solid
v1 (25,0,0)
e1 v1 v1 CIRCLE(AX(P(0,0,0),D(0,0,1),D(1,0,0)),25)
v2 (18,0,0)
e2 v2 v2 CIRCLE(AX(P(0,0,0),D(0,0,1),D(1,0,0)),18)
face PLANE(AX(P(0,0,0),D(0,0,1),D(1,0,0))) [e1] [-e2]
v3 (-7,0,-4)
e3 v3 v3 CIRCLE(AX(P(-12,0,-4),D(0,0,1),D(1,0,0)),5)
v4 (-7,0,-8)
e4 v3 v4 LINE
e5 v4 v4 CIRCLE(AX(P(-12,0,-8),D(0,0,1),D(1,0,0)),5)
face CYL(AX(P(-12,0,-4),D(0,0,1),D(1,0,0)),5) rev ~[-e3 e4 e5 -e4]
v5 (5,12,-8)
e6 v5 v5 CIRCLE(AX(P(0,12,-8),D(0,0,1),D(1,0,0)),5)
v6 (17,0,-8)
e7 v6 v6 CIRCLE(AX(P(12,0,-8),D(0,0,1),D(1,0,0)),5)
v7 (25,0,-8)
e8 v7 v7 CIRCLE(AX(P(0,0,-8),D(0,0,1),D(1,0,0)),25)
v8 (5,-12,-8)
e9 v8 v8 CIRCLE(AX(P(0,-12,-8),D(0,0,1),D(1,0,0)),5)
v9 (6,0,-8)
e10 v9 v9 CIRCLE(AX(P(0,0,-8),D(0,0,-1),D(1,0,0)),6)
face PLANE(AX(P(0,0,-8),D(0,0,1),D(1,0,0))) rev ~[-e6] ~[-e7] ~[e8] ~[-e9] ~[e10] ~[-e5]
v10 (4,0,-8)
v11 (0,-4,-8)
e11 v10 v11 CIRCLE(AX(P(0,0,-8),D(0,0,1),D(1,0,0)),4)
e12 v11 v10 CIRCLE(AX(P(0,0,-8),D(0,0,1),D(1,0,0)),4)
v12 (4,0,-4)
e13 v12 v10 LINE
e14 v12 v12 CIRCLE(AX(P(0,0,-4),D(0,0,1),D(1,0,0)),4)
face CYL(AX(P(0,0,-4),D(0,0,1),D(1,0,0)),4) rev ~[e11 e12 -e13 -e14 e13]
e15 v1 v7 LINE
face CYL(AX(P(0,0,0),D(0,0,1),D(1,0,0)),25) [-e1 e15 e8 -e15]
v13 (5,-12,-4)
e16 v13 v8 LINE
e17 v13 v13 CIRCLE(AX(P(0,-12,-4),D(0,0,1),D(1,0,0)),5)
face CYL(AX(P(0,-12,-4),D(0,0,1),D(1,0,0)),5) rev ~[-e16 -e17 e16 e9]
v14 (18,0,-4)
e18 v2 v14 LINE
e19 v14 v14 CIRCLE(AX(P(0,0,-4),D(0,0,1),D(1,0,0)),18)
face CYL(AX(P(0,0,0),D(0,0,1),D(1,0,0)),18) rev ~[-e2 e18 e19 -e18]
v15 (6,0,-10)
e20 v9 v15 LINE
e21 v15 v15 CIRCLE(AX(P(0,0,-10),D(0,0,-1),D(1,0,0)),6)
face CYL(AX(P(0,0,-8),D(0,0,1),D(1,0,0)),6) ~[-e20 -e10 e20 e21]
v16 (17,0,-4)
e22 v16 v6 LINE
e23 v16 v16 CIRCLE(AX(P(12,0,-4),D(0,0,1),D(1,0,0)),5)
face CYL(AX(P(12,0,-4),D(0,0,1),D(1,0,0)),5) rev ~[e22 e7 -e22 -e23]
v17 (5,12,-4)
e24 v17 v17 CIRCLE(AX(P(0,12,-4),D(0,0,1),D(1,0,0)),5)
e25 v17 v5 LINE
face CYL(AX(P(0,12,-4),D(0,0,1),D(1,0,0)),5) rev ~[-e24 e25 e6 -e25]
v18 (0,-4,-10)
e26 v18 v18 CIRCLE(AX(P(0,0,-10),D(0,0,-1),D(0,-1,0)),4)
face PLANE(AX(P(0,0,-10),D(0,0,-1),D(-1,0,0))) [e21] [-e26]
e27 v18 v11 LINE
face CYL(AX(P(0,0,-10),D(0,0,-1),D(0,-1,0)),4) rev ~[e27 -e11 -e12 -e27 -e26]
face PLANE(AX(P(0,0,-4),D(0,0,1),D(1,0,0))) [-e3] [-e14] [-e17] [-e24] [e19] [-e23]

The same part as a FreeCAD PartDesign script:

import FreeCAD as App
import Part
import Sketcher
Q = App.Units.Quantity

doc = App.newDocument("Part")
body = doc.addObject("PartDesign::Body", "Body")

sketch1 = body.newObject("Sketcher::SketchObject", "Sketch")
sketch1.AttachmentSupport = (doc.getObject("XY_Plane"), [""])
sketch1.MapMode = "FlatFace"
sketch1.addGeometry(Part.Circle(App.Vector(0, 0, 0), App.Vector(0, 0, 1), 25), False)
sketch1.addConstraint([
    Sketcher.Constraint("Coincident", 0, 3, -1, 1),
    Sketcher.Constraint("Diameter", 0, Q("50 mm")),
])
pad1 = body.newObject("PartDesign::Pad", "Pad")
pad1.Profile = sketch1
pad1.Length = 8
pad1.Reversed = True

sketch2 = body.newObject("Sketcher::SketchObject", "Sketch001")
sketch2.AttachmentSupport = (doc.getObject("XY_Plane"), [""])
sketch2.MapMode = "FlatFace"
sketch2.addGeometry(Part.Circle(App.Vector(0, 0, 0), App.Vector(0, 0, 1), 18), False)
sketch2.addConstraint([
    Sketcher.Constraint("Coincident", 0, 3, -1, 1),
    Sketcher.Constraint("Diameter", 0, Q("36 mm")),
])
pocket1 = body.newObject("PartDesign::Pocket", "Pocket")
pocket1.Profile = sketch2
pocket1.Length = 4

sketch3 = body.newObject("Sketcher::SketchObject", "Sketch002")
sketch3.AttachmentSupport = (doc.getObject("XY_Plane"), [""])
sketch3.MapMode = "FlatFace"
sketch3.AttachmentOffset = App.Placement(App.Vector(0, 0, -4), App.Rotation())
sketch3.addGeometry(Part.Circle(App.Vector(0, 0, 0), App.Vector(0, 0, 1), 4), False)
sketch3.addConstraint([
    Sketcher.Constraint("Coincident", 0, 3, -1, 1),
    Sketcher.Constraint("Diameter", 0, Q("8 mm")),
])
pocket2 = body.newObject("PartDesign::Pocket", "Pocket001")
pocket2.Profile = sketch3
pocket2.Length = 6

sketch4 = body.newObject("Sketcher::SketchObject", "Sketch003")
sketch4.AttachmentSupport = (doc.getObject("XY_Plane"), [""])
sketch4.MapMode = "FlatFace"
sketch4.AttachmentOffset = App.Placement(App.Vector(0, 0, -8), App.Rotation())
sketch4.addGeometry(Part.Circle(App.Vector(0, 0, 0), App.Vector(0, 0, 1), 6), False)
sketch4.addConstraint([
    Sketcher.Constraint("Coincident", 0, 3, -1, 1),
    Sketcher.Constraint("Diameter", 0, Q("12 mm")),
])
pad2 = body.newObject("PartDesign::Pad", "Pad001")
pad2.Profile = sketch4
pad2.Length = 2
pad2.Reversed = True

sketch5 = body.newObject("Sketcher::SketchObject", "Sketch004")
sketch5.AttachmentSupport = (doc.getObject("XY_Plane"), [""])
sketch5.MapMode = "FlatFace"
sketch5.AttachmentOffset = App.Placement(App.Vector(0, 0, -10), App.Rotation())
sketch5.addGeometry(Part.Circle(App.Vector(0, 0, 0), App.Vector(0, 0, 1), 4), False)
sketch5.addConstraint([
    Sketcher.Constraint("Coincident", 0, 3, -1, 1),
    Sketcher.Constraint("Diameter", 0, Q("8 mm")),
])
pocket3 = body.newObject("PartDesign::Pocket", "Pocket002")
pocket3.Profile = sketch5
pocket3.Length = 2
pocket3.Reversed = True

sketch6 = body.newObject("Sketcher::SketchObject", "Sketch005")
sketch6.AttachmentSupport = (doc.getObject("XY_Plane"), [""])
sketch6.MapMode = "FlatFace"
sketch6.AttachmentOffset = App.Placement(App.Vector(0, 0, -4), App.Rotation())
sketch6.addGeometry([
    Part.Circle(App.Vector(12, 0, 0), App.Vector(0, 0, 1), 5),
    Part.Circle(App.Vector(-12, 0, 0), App.Vector(0, 0, 1), 5),
    Part.Circle(App.Vector(0, 12, 0), App.Vector(0, 0, 1), 5),
    Part.Circle(App.Vector(0, -12, 0), App.Vector(0, 0, 1), 5),
], False)
sketch6.addConstraint([
    Sketcher.Constraint("Equal", 0, 1),
    Sketcher.Constraint("Equal", 1, 2),
    Sketcher.Constraint("Equal", 2, 3),
    Sketcher.Constraint("Symmetric", 0, 3, 1, 3, -1, 1),
    Sketcher.Constraint("Symmetric", 2, 3, 3, 3, -1, 1),
    Sketcher.Constraint("PointOnObject", 0, 3, -1),
    Sketcher.Constraint("PointOnObject", 2, 3, -2),
    Sketcher.Constraint("Diameter", 0, Q("10 mm")),
    Sketcher.Constraint("DistanceX", -1, 1, 0, 3, Q("12 mm")),
    Sketcher.Constraint("DistanceY", -1, 1, 2, 3, Q("12 mm")),
])
pocket4 = body.newObject("PartDesign::Pocket", "Pocket003")
pocket4.Profile = sketch6
pocket4.Length = 6

doc.recompute()
